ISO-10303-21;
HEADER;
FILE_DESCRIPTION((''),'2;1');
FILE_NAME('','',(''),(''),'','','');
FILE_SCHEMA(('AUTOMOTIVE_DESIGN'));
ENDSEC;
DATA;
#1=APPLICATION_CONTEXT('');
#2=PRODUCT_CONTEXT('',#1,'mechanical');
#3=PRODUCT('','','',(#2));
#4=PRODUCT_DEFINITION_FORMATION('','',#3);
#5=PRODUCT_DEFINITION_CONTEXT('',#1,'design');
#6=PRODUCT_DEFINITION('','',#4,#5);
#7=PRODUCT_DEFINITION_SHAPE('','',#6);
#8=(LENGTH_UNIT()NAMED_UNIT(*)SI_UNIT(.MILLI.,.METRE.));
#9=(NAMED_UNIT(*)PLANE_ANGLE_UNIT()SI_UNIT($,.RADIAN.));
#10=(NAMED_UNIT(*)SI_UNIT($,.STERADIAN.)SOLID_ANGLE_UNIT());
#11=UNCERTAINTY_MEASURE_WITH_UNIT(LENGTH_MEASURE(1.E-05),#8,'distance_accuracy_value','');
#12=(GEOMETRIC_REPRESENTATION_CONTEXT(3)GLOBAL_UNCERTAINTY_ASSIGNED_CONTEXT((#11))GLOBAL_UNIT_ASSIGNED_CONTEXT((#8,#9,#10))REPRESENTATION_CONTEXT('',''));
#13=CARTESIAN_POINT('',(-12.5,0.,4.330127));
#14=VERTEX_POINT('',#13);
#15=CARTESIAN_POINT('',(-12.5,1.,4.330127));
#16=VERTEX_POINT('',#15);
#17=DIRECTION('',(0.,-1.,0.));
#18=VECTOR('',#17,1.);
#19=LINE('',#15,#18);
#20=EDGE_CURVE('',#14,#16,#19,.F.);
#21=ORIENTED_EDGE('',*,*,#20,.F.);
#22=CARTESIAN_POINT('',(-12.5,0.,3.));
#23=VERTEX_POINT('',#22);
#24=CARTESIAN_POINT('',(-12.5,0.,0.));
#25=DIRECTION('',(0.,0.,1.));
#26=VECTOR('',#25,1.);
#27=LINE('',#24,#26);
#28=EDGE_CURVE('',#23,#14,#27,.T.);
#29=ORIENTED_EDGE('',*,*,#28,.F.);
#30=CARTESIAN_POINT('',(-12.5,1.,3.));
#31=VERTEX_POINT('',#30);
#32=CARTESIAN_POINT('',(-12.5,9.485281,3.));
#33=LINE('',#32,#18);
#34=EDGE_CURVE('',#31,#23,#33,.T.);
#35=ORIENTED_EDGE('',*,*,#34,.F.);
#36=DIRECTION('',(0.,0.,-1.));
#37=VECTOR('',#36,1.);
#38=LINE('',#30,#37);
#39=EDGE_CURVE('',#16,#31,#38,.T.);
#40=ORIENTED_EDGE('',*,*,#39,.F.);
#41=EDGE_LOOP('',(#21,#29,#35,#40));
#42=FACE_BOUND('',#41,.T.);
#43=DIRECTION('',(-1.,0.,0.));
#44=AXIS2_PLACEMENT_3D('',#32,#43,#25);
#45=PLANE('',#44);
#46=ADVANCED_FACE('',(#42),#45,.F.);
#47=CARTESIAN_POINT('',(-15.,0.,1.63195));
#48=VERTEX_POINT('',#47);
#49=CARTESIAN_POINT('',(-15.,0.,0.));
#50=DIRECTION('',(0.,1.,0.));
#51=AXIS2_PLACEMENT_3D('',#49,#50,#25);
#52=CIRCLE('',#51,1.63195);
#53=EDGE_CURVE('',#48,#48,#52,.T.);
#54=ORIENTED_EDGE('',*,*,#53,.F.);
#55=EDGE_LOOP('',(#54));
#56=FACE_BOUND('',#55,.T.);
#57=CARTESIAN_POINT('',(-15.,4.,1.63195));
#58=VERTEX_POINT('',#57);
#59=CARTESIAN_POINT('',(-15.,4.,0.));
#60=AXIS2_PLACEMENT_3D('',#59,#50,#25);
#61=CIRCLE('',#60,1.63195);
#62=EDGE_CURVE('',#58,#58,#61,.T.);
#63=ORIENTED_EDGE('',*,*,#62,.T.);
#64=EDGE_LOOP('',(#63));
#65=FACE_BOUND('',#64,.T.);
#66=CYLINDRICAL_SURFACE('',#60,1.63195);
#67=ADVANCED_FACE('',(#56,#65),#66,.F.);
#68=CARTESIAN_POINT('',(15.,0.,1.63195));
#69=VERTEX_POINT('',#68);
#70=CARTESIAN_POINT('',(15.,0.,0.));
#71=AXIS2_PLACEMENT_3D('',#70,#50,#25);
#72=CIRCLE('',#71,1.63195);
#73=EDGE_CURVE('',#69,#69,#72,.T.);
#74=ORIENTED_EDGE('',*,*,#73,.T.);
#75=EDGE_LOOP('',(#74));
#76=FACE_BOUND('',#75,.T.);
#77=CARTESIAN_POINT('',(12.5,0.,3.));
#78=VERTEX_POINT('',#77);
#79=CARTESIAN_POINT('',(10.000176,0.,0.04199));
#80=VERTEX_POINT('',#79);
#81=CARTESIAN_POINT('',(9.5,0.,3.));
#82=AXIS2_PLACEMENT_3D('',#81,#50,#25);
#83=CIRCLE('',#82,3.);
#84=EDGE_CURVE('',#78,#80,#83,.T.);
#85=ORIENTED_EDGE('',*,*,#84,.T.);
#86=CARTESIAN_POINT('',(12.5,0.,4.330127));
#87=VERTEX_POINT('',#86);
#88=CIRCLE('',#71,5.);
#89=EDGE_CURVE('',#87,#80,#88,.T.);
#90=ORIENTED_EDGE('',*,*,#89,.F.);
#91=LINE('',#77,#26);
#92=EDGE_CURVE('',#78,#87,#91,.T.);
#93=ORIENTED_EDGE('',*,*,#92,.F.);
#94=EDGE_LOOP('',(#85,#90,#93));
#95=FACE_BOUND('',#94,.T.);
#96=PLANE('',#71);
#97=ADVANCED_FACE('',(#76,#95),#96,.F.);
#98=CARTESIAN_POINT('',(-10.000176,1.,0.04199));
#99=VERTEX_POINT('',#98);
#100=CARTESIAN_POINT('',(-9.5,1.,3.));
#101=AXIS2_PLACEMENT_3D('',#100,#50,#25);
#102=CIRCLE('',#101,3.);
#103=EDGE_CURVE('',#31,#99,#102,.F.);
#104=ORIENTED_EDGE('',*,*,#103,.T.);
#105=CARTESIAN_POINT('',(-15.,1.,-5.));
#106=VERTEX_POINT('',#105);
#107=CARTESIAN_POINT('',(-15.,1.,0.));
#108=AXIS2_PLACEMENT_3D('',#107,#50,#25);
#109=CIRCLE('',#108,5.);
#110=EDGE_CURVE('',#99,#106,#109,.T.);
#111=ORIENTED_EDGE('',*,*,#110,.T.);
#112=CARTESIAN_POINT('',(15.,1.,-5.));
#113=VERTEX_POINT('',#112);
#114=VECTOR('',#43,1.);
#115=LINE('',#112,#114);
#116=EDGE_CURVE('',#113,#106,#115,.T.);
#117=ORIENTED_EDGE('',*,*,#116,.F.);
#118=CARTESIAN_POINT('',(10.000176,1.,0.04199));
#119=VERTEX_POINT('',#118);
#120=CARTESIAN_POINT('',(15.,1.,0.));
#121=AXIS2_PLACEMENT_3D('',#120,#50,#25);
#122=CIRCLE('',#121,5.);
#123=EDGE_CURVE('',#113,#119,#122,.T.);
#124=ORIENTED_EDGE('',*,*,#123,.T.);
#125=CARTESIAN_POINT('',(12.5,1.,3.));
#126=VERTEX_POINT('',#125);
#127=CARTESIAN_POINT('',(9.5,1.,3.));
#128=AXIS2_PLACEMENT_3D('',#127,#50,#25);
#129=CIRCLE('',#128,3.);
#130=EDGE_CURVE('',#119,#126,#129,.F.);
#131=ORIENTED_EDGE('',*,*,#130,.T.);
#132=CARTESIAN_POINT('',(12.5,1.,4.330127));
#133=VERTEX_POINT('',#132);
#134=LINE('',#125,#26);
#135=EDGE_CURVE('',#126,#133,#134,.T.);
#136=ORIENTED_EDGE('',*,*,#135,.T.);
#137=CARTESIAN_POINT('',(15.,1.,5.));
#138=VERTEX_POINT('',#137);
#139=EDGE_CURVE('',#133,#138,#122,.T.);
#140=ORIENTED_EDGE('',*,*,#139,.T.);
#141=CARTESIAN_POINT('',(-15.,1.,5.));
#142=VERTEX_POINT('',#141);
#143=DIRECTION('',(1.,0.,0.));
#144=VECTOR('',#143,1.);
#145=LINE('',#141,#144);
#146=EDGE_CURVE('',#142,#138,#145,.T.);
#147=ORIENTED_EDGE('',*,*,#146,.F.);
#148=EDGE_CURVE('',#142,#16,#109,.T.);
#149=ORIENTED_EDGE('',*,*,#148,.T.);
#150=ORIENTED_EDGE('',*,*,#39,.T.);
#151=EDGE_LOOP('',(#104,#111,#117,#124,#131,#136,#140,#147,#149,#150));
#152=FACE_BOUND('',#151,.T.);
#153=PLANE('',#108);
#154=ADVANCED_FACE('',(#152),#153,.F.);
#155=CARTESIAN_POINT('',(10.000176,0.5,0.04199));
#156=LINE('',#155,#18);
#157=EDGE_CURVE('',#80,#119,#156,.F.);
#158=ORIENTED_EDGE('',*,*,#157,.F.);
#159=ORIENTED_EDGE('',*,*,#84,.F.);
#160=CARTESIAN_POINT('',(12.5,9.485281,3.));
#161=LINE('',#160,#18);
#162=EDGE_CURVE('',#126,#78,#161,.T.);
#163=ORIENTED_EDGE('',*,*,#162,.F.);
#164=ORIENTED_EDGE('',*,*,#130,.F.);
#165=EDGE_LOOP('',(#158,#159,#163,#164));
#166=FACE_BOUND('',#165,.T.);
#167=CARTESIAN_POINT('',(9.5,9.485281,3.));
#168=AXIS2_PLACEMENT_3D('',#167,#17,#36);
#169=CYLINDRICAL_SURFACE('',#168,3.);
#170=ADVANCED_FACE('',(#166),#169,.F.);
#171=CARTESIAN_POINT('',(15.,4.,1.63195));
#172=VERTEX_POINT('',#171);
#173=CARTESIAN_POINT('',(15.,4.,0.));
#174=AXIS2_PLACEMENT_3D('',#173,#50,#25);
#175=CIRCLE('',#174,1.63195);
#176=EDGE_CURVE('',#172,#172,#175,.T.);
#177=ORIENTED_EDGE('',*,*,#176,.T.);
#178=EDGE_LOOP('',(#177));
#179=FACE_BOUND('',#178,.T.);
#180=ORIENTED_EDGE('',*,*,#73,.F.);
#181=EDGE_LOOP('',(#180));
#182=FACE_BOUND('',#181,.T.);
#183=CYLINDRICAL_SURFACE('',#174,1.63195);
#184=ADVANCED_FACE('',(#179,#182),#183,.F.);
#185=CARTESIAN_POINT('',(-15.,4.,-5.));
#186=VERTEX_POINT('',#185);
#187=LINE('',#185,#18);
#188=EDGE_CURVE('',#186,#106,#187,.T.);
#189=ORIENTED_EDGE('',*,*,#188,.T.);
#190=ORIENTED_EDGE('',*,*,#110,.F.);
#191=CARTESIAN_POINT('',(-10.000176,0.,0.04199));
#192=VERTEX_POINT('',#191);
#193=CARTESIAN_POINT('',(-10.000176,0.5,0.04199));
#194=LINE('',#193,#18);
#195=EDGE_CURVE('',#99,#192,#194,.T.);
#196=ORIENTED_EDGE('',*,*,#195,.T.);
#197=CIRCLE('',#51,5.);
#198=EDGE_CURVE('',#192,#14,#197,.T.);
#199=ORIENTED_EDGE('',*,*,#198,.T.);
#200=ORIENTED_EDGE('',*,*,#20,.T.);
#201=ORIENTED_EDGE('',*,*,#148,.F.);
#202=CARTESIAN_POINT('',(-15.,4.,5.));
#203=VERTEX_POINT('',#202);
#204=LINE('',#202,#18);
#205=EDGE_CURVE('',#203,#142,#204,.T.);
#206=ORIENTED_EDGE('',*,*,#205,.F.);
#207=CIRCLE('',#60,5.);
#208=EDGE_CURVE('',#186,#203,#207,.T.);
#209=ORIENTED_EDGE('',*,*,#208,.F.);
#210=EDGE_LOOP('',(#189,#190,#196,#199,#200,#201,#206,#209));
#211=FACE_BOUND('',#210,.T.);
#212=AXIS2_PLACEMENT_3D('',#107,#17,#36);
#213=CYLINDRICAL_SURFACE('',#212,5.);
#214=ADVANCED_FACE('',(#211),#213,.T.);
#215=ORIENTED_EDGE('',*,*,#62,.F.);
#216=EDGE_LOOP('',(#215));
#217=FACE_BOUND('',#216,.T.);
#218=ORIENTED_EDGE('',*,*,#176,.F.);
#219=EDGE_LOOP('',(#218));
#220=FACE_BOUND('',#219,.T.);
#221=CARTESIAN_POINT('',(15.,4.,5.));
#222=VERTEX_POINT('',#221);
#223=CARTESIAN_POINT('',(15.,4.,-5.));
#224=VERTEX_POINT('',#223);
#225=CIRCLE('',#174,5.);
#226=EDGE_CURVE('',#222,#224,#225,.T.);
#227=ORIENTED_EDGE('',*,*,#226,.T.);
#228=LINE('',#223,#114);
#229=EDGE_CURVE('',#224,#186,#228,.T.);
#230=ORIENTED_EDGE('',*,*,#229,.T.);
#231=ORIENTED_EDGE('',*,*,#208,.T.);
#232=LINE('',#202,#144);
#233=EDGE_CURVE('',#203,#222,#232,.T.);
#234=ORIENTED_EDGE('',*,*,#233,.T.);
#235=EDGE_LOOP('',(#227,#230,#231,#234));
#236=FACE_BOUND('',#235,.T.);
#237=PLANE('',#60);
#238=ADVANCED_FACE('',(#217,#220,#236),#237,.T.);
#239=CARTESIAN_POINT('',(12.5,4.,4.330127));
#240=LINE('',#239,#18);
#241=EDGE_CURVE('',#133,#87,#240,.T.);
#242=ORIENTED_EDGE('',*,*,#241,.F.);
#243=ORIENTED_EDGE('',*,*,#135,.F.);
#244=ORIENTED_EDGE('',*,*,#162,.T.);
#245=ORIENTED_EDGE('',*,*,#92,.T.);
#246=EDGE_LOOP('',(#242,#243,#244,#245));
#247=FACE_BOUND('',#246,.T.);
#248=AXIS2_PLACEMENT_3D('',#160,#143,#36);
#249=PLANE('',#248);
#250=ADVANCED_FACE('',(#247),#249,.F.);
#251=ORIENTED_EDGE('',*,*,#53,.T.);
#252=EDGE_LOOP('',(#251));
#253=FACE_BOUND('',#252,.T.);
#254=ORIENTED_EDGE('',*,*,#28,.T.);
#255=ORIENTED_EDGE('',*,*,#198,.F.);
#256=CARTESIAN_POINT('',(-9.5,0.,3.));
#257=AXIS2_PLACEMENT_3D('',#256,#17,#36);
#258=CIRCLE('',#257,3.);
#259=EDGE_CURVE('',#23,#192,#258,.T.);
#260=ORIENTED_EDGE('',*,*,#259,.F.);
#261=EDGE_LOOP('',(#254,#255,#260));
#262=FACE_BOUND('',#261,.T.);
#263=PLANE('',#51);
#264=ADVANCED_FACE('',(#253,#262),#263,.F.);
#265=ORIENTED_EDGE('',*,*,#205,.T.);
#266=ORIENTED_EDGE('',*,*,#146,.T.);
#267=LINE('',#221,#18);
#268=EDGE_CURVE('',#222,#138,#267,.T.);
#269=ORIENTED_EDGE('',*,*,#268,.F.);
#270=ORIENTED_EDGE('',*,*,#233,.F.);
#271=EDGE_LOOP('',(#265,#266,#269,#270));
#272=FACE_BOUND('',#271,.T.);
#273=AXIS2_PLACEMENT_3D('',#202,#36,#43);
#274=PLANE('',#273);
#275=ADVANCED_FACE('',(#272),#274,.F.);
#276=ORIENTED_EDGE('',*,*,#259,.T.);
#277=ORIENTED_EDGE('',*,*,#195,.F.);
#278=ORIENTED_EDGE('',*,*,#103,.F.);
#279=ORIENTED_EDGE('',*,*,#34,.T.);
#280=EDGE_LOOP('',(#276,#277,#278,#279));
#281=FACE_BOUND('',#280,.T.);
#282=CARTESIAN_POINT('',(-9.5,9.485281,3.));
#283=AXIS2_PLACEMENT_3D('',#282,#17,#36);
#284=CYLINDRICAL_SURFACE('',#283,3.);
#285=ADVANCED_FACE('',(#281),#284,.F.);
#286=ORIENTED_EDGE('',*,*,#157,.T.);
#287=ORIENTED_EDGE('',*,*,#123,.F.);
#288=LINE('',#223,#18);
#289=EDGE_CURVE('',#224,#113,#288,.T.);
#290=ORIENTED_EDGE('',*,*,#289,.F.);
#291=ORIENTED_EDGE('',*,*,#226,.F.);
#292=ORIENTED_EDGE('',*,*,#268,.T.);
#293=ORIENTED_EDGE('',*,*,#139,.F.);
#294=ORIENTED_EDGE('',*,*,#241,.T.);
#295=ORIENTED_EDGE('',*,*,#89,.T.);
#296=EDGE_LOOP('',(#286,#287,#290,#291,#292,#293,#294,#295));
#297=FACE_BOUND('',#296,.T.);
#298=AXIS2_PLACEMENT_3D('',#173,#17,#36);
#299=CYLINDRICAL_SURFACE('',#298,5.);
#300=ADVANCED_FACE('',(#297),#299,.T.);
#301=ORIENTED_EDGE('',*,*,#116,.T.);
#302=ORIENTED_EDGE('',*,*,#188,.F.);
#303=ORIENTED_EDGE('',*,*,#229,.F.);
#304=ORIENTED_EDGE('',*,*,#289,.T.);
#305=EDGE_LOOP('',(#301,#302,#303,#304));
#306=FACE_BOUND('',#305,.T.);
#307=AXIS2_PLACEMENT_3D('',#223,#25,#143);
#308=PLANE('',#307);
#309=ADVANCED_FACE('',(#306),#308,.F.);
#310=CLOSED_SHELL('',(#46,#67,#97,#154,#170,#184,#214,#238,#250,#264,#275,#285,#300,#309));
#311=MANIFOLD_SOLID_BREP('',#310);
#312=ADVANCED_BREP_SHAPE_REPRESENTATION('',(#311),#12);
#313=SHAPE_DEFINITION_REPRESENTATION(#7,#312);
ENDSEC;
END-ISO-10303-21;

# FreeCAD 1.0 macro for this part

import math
import FreeCAD as App
import Part
import Sketcher

V = App.Vector
Q = App.Units.Quantity

doc = App.newDocument("Part")
body = doc.addObject("PartDesign::Body", "Body")

# Sketch on XZ plane
sketch1 = body.newObject("Sketcher::SketchObject", "Sketch")
sketch1.AttachmentSupport = (doc.getObject("XZ_Plane"), [""])
sketch1.MapMode = "FlatFace"
sketch1.addGeometry(Part.Circle(V(-15, 0, 0), V(0, 0, 1), 5), False)
sketch1.addConstraint(Sketcher.Constraint("PointOnObject", 0, 3, -1))
sketch1.addConstraint(Sketcher.Constraint("Diameter", 0, Q("10 mm")))
sketch1.addConstraint(Sketcher.Constraint("DistanceX", 0, 3, -1, 1, Q("15 mm")))
pad1 = body.newObject("PartDesign::Pad", "Pad")
pad1.Profile = sketch1
pad1.Length = 1
pad1.Reversed = True
body2 = doc.addObject("PartDesign::Body", "Body001")

# Sketch on XZ plane
sketch2 = body2.newObject("Sketcher::SketchObject", "Sketch001")
sketch2.AttachmentSupport = (doc.getObject("XZ_Plane001"), [""])
sketch2.MapMode = "FlatFace"
sketch2.addGeometry(Part.Circle(V(15, 0, 0), V(0, 0, 1), 5), False)
sketch2.addConstraint(Sketcher.Constraint("PointOnObject", 0, 3, -1))
sketch2.addConstraint(Sketcher.Constraint("Diameter", 0, Q("10 mm")))
sketch2.addConstraint(Sketcher.Constraint("DistanceX", -1, 1, 0, 3, Q("15 mm")))
pad2 = body2.newObject("PartDesign::Pad", "Pad001")
pad2.Profile = sketch2
pad2.Length = 1
pad2.Reversed = True
body.AllowCompound = True
doc.recompute()

boolean = body.newObject("PartDesign::Boolean", "Boolean")
boolean.Type = "Fuse"
boolean.addObjects([body2])

# Sketch on XZ plane
sketch3 = body.newObject("Sketcher::SketchObject", "Sketch002")
sketch3.AttachmentSupport = (doc.getObject("XZ_Plane"), [""])
sketch3.MapMode = "FlatFace"
sketch3.AttachmentOffset = App.Placement(V(0, 0, -1), App.Rotation())
sketch3.addGeometry(Part.LineSegment(V(-15, 5, 0), V(15, 5, 0)), False)
sketch3.addGeometry(Part.ArcOfCircle(Part.Circle(V(15, 0, 0), V(0, 0, 1), 5), math.radians(-90), math.radians(90)), False)
sketch3.addGeometry(Part.LineSegment(V(15, -5, 0), V(-15, -5, 0)), False)
sketch3.addGeometry(Part.ArcOfCircle(Part.Circle(V(-15, 0, 0), V(0, 0, 1), 5), math.radians(90), math.radians(270)), False)
sketch3.addConstraint(Sketcher.Constraint("Tangent", 0, 2, 1, 2))
sketch3.addConstraint(Sketcher.Constraint("Tangent", 1, 1, 2, 1))
sketch3.addConstraint(Sketcher.Constraint("Tangent", 2, 2, 3, 2))
sketch3.addConstraint(Sketcher.Constraint("Tangent", 3, 1, 0, 1))
sketch3.addConstraint(Sketcher.Constraint("Horizontal", 0))
sketch3.addConstraint(Sketcher.Constraint("Horizontal", 2))
sketch3.addConstraint(Sketcher.Constraint("Symmetric", 1, 3, 3, 3, -1, 1))
sketch3.addConstraint(Sketcher.Constraint("Radius", 1, Q("5 mm")))
sketch3.addConstraint(Sketcher.Constraint("DistanceX", 0, 1, 0, 2, Q("30 mm")))
pad3 = body.newObject("PartDesign::Pad", "Pad002")
pad3.Profile = sketch3
pad3.Length = 3
pad3.Reversed = True

# Sketch on XZ plane
sketch4 = body.newObject("Sketcher::SketchObject", "Sketch003")
sketch4.AttachmentSupport = (doc.getObject("XZ_Plane"), [""])
sketch4.MapMode = "FlatFace"
sketch4.AttachmentOffset = App.Placement(V(0, 0, -4), App.Rotation())
sketch4.addGeometry(Part.Circle(V(-15, 0, 0), V(0, 0, 1), 1.63195), False)
sketch4.addGeometry(Part.Circle(V(15, 0, 0), V(0, 0, 1), 1.63195), False)
sketch4.addConstraint(Sketcher.Constraint("Equal", 0, 1))
sketch4.addConstraint(Sketcher.Constraint("Symmetric", 0, 3, 1, 3, -1, 1))
sketch4.addConstraint(Sketcher.Constraint("PointOnObject", 0, 3, -1))
sketch4.addConstraint(Sketcher.Constraint("DistanceX", 0, 3, -1, 1, Q("15 mm")))
sketch4.addConstraint(Sketcher.Constraint("Diameter", 0, Q("3.2639 mm")))
doc.recompute()
hole = body.newObject("PartDesign::Hole", "Hole")
hole.Profile = sketch4
hole.ThreadType = "None"
hole.Diameter = 3.2639
hole.DepthType = "ThroughAll"
hole.Reversed = True

# Sketch on XZ plane
sketch5 = body.newObject("Sketcher::SketchObject", "Sketch004")
sketch5.AttachmentSupport = (doc.getObject("XZ_Plane"), [""])
sketch5.MapMode = "FlatFace"
sketch5.addGeometry(Part.LineSegment(V(12.5, 3, 0), V(12.5, 6, 0)), False)
sketch5.addGeometry(Part.LineSegment(V(12.5, 6, 0), V(9.5, 6, 0)), False)
sketch5.addGeometry(Part.ArcOfCircle(Part.Circle(V(9.5, 3, 0), V(0, 0, 1), 3), math.radians(90), math.radians(180)), False)
sketch5.addGeometry(Part.LineSegment(V(6.5, 3, 0), V(6.5, 0, 0)), False)
sketch5.addGeometry(Part.LineSegment(V(6.5, 0, 0), V(9.5, 0, 0)), False)
sketch5.addGeometry(Part.ArcOfCircle(Part.Circle(V(9.5, 3, 0), V(0, 0, 1), 3), math.radians(-90), math.radians(0)), False)
sketch5.addGeometry(Part.LineSegment(V(-12.5, 6, 0), V(-12.5, 3, 0)), False)
sketch5.addGeometry(Part.ArcOfCircle(Part.Circle(V(-9.5, 3, 0), V(0, 0, 1), 3), math.radians(180), math.radians(270)), False)
sketch5.addGeometry(Part.LineSegment(V(-9.5, 0, 0), V(-6.5, 0, 0)), False)
sketch5.addGeometry(Part.LineSegment(V(-6.5, 0, 0), V(-6.5, 3, 0)), False)
sketch5.addGeometry(Part.ArcOfCircle(Part.Circle(V(-9.5, 3, 0), V(0, 0, 1), 3), math.radians(0), math.radians(90)), False)
sketch5.addGeometry(Part.LineSegment(V(-9.5, 6, 0), V(-12.5, 6, 0)), False)
sketch5.addConstraint(Sketcher.Constraint("Coincident", 0, 2, 1, 1))
sketch5.addConstraint(Sketcher.Constraint("Tangent", 1, 2, 2, 1))
sketch5.addConstraint(Sketcher.Constraint("Tangent", 2, 2, 3, 1))
sketch5.addConstraint(Sketcher.Constraint("Coincident", 3, 2, 4, 1))
sketch5.addConstraint(Sketcher.Constraint("Tangent", 4, 2, 5, 1))
sketch5.addConstraint(Sketcher.Constraint("Tangent", 5, 2, 0, 1))
sketch5.addConstraint(Sketcher.Constraint("Tangent", 6, 2, 7, 1))
sketch5.addConstraint(Sketcher.Constraint("Tangent", 7, 2, 8, 1))
sketch5.addConstraint(Sketcher.Constraint("Coincident", 8, 2, 9, 1))
sketch5.addConstraint(Sketcher.Constraint("Tangent", 9, 2, 10, 1))
sketch5.addConstraint(Sketcher.Constraint("Tangent", 10, 2, 11, 1))
sketch5.addConstraint(Sketcher.Constraint("Coincident", 11, 2, 6, 1))
sketch5.addConstraint(Sketcher.Constraint("Vertical", 0))
sketch5.addConstraint(Sketcher.Constraint("Horizontal", 1))
sketch5.addConstraint(Sketcher.Constraint("Vertical", 3))
sketch5.addConstraint(Sketcher.Constraint("Horizontal", 4))
sketch5.addConstraint(Sketcher.Constraint("Vertical", 6))
sketch5.addConstraint(Sketcher.Constraint("Horizontal", 8))
sketch5.addConstraint(Sketcher.Constraint("Vertical", 9))
sketch5.addConstraint(Sketcher.Constraint("Horizontal", 11))
sketch5.addConstraint(Sketcher.Constraint("Coincident", 5, 3, 2, 3))
sketch5.addConstraint(Sketcher.Constraint("Coincident", 10, 3, 7, 3))
sketch5.addConstraint(Sketcher.Constraint("Equal", 2, 5))
sketch5.addConstraint(Sketcher.Constraint("Equal", 5, 7))
sketch5.addConstraint(Sketcher.Constraint("Equal", 7, 10))
sketch5.addConstraint(Sketcher.Constraint("Symmetric", 4, 2, 7, 2, -1, 1))
sketch5.addConstraint(Sketcher.Constraint("PointOnObject", 3, 2, -1))
sketch5.addConstraint(Sketcher.Constraint("Radius", 2, Q("3 mm")))
sketch5.addConstraint(Sketcher.Constraint("DistanceX", 7, 3, 2, 3, Q("19 mm")))
pocket1 = body.newObject("PartDesign::Pocket", "Pocket")
pocket1.Profile = sketch5
pocket1.Length = 1

doc.recompute()
